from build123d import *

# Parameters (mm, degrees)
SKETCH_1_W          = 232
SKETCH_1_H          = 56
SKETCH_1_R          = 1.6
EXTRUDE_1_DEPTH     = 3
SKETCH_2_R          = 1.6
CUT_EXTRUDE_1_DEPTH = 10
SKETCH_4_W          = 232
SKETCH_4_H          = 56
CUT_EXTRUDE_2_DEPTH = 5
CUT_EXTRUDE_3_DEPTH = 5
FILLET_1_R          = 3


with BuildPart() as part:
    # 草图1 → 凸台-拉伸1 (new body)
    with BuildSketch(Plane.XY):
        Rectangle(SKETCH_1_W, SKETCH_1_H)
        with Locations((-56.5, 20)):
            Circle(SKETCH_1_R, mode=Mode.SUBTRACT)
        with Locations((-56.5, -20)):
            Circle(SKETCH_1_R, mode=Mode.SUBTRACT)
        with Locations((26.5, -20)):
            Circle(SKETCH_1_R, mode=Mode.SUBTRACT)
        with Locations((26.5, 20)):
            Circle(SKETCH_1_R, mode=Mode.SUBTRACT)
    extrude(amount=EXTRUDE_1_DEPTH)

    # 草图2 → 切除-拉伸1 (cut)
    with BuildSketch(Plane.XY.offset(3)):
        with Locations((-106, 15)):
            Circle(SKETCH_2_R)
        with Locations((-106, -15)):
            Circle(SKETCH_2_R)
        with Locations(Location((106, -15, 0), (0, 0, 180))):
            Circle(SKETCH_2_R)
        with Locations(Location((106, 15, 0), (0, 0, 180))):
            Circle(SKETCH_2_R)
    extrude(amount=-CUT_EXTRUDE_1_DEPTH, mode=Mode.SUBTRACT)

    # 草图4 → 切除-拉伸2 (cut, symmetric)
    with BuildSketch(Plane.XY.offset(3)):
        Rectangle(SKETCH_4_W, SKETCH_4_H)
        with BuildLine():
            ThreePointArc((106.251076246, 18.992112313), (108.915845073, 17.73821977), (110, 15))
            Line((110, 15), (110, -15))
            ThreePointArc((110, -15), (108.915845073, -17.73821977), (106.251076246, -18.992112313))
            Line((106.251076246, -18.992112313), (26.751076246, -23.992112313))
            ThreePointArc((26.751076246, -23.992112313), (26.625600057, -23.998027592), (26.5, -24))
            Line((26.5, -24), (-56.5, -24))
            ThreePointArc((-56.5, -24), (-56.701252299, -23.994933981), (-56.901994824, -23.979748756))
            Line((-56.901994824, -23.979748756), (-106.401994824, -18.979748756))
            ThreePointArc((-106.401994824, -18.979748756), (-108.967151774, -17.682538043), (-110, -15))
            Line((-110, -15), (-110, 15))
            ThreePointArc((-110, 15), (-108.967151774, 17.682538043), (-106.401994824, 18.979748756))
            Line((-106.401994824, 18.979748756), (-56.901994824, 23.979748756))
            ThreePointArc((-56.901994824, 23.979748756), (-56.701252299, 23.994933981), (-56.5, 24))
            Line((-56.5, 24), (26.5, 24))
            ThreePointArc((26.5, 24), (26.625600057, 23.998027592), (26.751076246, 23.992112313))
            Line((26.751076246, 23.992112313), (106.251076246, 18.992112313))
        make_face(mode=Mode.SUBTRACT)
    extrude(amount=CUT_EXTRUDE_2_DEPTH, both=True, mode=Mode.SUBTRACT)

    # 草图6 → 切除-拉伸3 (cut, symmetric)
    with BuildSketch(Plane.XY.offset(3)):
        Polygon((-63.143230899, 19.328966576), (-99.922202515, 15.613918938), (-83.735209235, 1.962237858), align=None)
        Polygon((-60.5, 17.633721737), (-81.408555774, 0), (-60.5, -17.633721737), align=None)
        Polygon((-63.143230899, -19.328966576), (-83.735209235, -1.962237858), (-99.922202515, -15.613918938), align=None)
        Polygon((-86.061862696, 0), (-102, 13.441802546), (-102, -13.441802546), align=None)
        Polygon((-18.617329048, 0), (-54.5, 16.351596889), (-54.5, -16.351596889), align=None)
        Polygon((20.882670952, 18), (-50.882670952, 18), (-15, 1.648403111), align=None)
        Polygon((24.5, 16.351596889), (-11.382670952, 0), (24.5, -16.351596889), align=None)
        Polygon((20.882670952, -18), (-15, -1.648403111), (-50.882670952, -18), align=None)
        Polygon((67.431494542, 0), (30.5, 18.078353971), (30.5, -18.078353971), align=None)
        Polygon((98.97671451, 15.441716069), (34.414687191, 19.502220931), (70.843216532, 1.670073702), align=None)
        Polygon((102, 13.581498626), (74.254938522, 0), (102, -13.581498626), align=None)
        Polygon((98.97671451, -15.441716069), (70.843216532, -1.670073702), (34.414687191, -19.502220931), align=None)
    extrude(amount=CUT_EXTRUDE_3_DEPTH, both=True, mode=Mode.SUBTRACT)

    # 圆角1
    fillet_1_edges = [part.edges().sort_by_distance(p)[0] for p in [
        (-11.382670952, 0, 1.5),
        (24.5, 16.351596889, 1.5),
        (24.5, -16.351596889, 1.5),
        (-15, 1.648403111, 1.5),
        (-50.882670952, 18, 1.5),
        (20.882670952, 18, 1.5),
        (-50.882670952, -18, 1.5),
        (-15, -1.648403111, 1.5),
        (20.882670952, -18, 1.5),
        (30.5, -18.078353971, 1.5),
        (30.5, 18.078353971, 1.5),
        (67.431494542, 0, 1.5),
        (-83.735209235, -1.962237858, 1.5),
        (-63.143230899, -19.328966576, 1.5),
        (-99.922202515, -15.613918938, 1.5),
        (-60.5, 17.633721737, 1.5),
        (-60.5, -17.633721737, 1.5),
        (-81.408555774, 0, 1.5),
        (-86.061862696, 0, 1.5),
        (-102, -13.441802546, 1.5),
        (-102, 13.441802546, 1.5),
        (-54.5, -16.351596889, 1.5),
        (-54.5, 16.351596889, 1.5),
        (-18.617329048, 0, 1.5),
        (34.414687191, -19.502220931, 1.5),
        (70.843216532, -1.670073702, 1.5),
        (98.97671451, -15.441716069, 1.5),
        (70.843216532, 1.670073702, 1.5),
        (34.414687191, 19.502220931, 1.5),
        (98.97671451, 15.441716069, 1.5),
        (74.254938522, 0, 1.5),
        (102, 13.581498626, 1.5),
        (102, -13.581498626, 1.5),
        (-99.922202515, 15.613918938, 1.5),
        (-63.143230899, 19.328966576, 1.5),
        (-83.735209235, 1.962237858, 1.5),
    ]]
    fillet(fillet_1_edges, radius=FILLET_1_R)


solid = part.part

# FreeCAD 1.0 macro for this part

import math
import FreeCAD as App
import Part
import Sketcher
Q = App.Units.Quantity


def edges_at(feature, points):
    """Names of the edges that pass closest to the given points."""
    edges = feature.Shape.Edges
    near = lambda p: min(range(len(edges)), key=lambda i: edges[i].distToShape(Part.Vertex(*p))[0])
    return sorted({f"Edge{near(p) + 1}" for p in points})


def add_polygon(sketch, points):
    """Adds a closed chain of lines whose ends are joined by coincident constraints."""
    first, n = sketch.GeometryCount, len(points)
    for a, b in zip(points, points[1:] + points[:1]):
        sketch.addGeometry(Part.LineSegment(App.Vector(*a, 0), App.Vector(*b, 0)), False)
    for i in range(n):
        sketch.addConstraint(Sketcher.Constraint("Coincident", first + i, 2, first + (i + 1) % n, 1))

doc = App.newDocument("Part")
body = doc.addObject("PartDesign::Body", "Body")

sketch1 = doc.addObject("Sketcher::SketchObject", "Sketch")
body.addObject(sketch1)
sketch1.AttachmentSupport = (doc.XY_Plane, [""])
sketch1.MapMode = "FlatFace"
add_polygon(sketch1, [(-116, 28), (-116, -28), (116, -28), (116, 28)])
sketch1.addGeometry(Part.Circle(App.Vector(-56.5, -20, 0), App.Vector(0, 0, 1), 1.6), False)
sketch1.addGeometry(Part.Circle(App.Vector(26.5, -20, 0), App.Vector(0, 0, 1), 1.6), False)
sketch1.addGeometry(Part.Circle(App.Vector(-56.5, 20, 0), App.Vector(0, 0, 1), 1.6), False)
sketch1.addGeometry(Part.Circle(App.Vector(26.5, 20, 0), App.Vector(0, 0, 1), 1.6), False)
sketch1.addConstraint(Sketcher.Constraint("Vertical", 0))
sketch1.addConstraint(Sketcher.Constraint("Horizontal", 1))
sketch1.addConstraint(Sketcher.Constraint("Vertical", 2))
sketch1.addConstraint(Sketcher.Constraint("Horizontal", 3))
sketch1.addConstraint(Sketcher.Constraint("Equal", 4, 5))
sketch1.addConstraint(Sketcher.Constraint("Equal", 5, 6))
sketch1.addConstraint(Sketcher.Constraint("Equal", 6, 7))
sketch1.addConstraint(Sketcher.Constraint("Symmetric", 0, 2, 2, 2, -1, 1))
sketch1.addConstraint(Sketcher.Constraint("Symmetric", 4, 3, 6, 3, -1))
sketch1.addConstraint(Sketcher.Constraint("Symmetric", 5, 3, 7, 3, -1))
sketch1.addConstraint(Sketcher.Constraint("Horizontal", 4, 3, 5, 3))
sketch1.addConstraint(Sketcher.Constraint("Diameter", 4, Q("3.2 mm")))
sketch1.addConstraint(Sketcher.Constraint("DistanceX", 1, 1, 1, 2, Q("232 mm")))
sketch1.addConstraint(Sketcher.Constraint("DistanceY", 0, 2, 0, 1, Q("56 mm")))
sketch1.addConstraint(Sketcher.Constraint("DistanceY", 4, 3, -1, 1, Q("20 mm")))
sketch1.addConstraint(Sketcher.Constraint("DistanceX", 4, 3, 5, 3, Q("83 mm")))
sketch1.addConstraint(Sketcher.Constraint("DistanceX", 4, 3, -1, 1, Q("56.5 mm")))
pad1 = doc.addObject("PartDesign::Pad", "Pad")
body.addObject(pad1)
pad1.Profile = sketch1
pad1.Length = 3

sketch2 = doc.addObject("Sketcher::SketchObject", "Sketch001")
body.addObject(sketch2)
sketch2.AttachmentSupport = (doc.XY_Plane, [""])
sketch2.MapMode = "FlatFace"
sketch2.AttachmentOffset = App.Placement(App.Vector(0, 0, 3), App.Rotation())
sketch2.addGeometry(Part.Circle(App.Vector(-106, 15, 0), App.Vector(0, 0, 1), 1.6), False)
sketch2.addGeometry(Part.Circle(App.Vector(-106, -15, 0), App.Vector(0, 0, 1), 1.6), False)
sketch2.addGeometry(Part.Circle(App.Vector(106, -15, 0), App.Vector(0, 0, 1), 1.6), False)
sketch2.addGeometry(Part.Circle(App.Vector(106, 15, 0), App.Vector(0, 0, 1), 1.6), False)
sketch2.addConstraint(Sketcher.Constraint("Equal", 0, 1))
sketch2.addConstraint(Sketcher.Constraint("Equal", 1, 2))
sketch2.addConstraint(Sketcher.Constraint("Equal", 2, 3))
sketch2.addConstraint(Sketcher.Constraint("Symmetric", 0, 3, 2, 3, -1, 1))
sketch2.addConstraint(Sketcher.Constraint("Symmetric", 1, 3, 3, 3, -1, 1))
sketch2.addConstraint(Sketcher.Constraint("Symmetric", 1, 3, 2, 3, -2))
sketch2.addConstraint(Sketcher.Constraint("Diameter", 0, Q("3.2 mm")))
sketch2.addConstraint(Sketcher.Constraint("DistanceX", 0, 3, -1, 1, Q("106 mm")))
sketch2.addConstraint(Sketcher.Constraint("DistanceY", -1, 1, 0, 3, Q("15 mm")))
pocket1 = doc.addObject("PartDesign::Pocket", "Pocket")
body.addObject(pocket1)
pocket1.Profile = sketch2
pocket1.Length = 10

sketch3 = doc.addObject("Sketcher::SketchObject", "Sketch002")
body.addObject(sketch3)
sketch3.AttachmentSupport = (doc.XY_Plane, [""])
sketch3.MapMode = "FlatFace"
sketch3.AttachmentOffset = App.Placement(App.Vector(0, 0, 3), App.Rotation())
add_polygon(sketch3, [(-116, 28), (-116, -28), (116, -28), (116, 28)])
sketch3.addGeometry(Part.LineSegment(App.Vector(26.75, 23.99, 0), App.Vector(106.25, 18.99, 0)), False)
sketch3.addGeometry(Part.ArcOfCircle(Part.Circle(App.Vector(106, 15, 0), App.Vector(0, 0, 1), 4), math.radians(0), math.radians(86)), False)
sketch3.addGeometry(Part.LineSegment(App.Vector(110, 15, 0), App.Vector(110, -15, 0)), False)
sketch3.addGeometry(Part.ArcOfCircle(Part.Circle(App.Vector(106, -15, 0), App.Vector(0, 0, 1), 4), math.radians(-86), math.radians(0)), False)
sketch3.addGeometry(Part.LineSegment(App.Vector(106.25, -18.99, 0), App.Vector(26.75, -23.99, 0)), False)
sketch3.addGeometry(Part.ArcOfCircle(Part.Circle(App.Vector(26.5, -20, 0), App.Vector(0, 0, 1), 4), math.radians(-90), math.radians(-86.4)), False)
sketch3.addGeometry(Part.LineSegment(App.Vector(26.5, -24, 0), App.Vector(-56.5, -24, 0)), False)
sketch3.addGeometry(Part.ArcOfCircle(Part.Circle(App.Vector(-56.5, -20, 0), App.Vector(0, 0, 1), 4), math.radians(-95.77), math.radians(-90)), False)
sketch3.addGeometry(Part.LineSegment(App.Vector(-56.9, -23.98, 0), App.Vector(-106.4, -18.98, 0)), False)
sketch3.addGeometry(Part.ArcOfCircle(Part.Circle(App.Vector(-106, -15, 0), App.Vector(0, 0, 1), 4), math.radians(180), math.radians(264)), False)
sketch3.addGeometry(Part.LineSegment(App.Vector(-110, -15, 0), App.Vector(-110, 15, 0)), False)
sketch3.addGeometry(Part.ArcOfCircle(Part.Circle(App.Vector(-106, 15, 0), App.Vector(0, 0, 1), 4), math.radians(96), math.radians(180)), False)
sketch3.addGeometry(Part.LineSegment(App.Vector(-106.4, 18.98, 0), App.Vector(-56.9, 23.98, 0)), False)
sketch3.addGeometry(Part.ArcOfCircle(Part.Circle(App.Vector(-56.5, 20, 0), App.Vector(0, 0, 1), 4), math.radians(90), math.radians(95.77)), False)
sketch3.addGeometry(Part.LineSegment(App.Vector(-56.5, 24, 0), App.Vector(26.5, 24, 0)), False)
sketch3.addGeometry(Part.ArcOfCircle(Part.Circle(App.Vector(26.5, 20, 0), App.Vector(0, 0, 1), 4), math.radians(86.4), math.radians(90)), False)
sketch3.addConstraint(Sketcher.Constraint("Tangent", 4, 2, 5, 2))
sketch3.addConstraint(Sketcher.Constraint("Tangent", 5, 1, 6, 1))
sketch3.addConstraint(Sketcher.Constraint("Tangent", 6, 2, 7, 2))
sketch3.addConstraint(Sketcher.Constraint("Tangent", 7, 1, 8, 1))
sketch3.addConstraint(Sketcher.Constraint("Tangent", 8, 2, 9, 2))
sketch3.addConstraint(Sketcher.Constraint("Tangent", 9, 1, 10, 1))
sketch3.addConstraint(Sketcher.Constraint("Tangent", 10, 2, 11, 2))
sketch3.addConstraint(Sketcher.Constraint("Tangent", 11, 1, 12, 1))
sketch3.addConstraint(Sketcher.Constraint("Tangent", 12, 2, 13, 2))
sketch3.addConstraint(Sketcher.Constraint("Tangent", 13, 1, 14, 1))
sketch3.addConstraint(Sketcher.Constraint("Tangent", 14, 2, 15, 2))
sketch3.addConstraint(Sketcher.Constraint("Tangent", 15, 1, 16, 1))
sketch3.addConstraint(Sketcher.Constraint("Tangent", 16, 2, 17, 2))
sketch3.addConstraint(Sketcher.Constraint("Tangent", 17, 1, 18, 1))
sketch3.addConstraint(Sketcher.Constraint("Tangent", 18, 2, 19, 2))
sketch3.addConstraint(Sketcher.Constraint("Tangent", 19, 1, 4, 1))
sketch3.addConstraint(Sketcher.Constraint("Vertical", 0))
sketch3.addConstraint(Sketcher.Constraint("Horizontal", 1))
sketch3.addConstraint(Sketcher.Constraint("Vertical", 2))
sketch3.addConstraint(Sketcher.Constraint("Horizontal", 3))
sketch3.addConstraint(Sketcher.Constraint("Vertical", 6))
sketch3.addConstraint(Sketcher.Constraint("Horizontal", 10))
sketch3.addConstraint(Sketcher.Constraint("Vertical", 14))
sketch3.addConstraint(Sketcher.Constraint("Horizontal", 18))
sketch3.addConstraint(Sketcher.Constraint("Equal", 5, 7))
sketch3.addConstraint(Sketcher.Constraint("Equal", 7, 9))
sketch3.addConstraint(Sketcher.Constraint("Equal", 9, 11))
sketch3.addConstraint(Sketcher.Constraint("Equal", 11, 13))
sketch3.addConstraint(Sketcher.Constraint("Equal", 13, 15))
sketch3.addConstraint(Sketcher.Constraint("Equal", 15, 17))
sketch3.addConstraint(Sketcher.Constraint("Equal", 17, 19))
sketch3.addConstraint(Sketcher.Constraint("Symmetric", 5, 3, 13, 3, -1, 1))
sketch3.addConstraint(Sketcher.Constraint("Symmetric", 0, 2, 2, 2, -1, 1))
sketch3.addConstraint(Sketcher.Constraint("Symmetric", 11, 3, 17, 3, -1))
sketch3.addConstraint(Sketcher.Constraint("Symmetric", 4, 2, 7, 1, -1))
sketch3.addConstraint(Sketcher.Constraint("Horizontal", 5, 3, 15, 3))
sketch3.addConstraint(Sketcher.Constraint("Radius", 5, Q("4 mm")))
sketch3.addConstraint(Sketcher.Constraint("DistanceX", 1, 1, 1, 2, Q("232 mm")))
sketch3.addConstraint(Sketcher.Constraint("DistanceX", 10, 2, 10, 1, Q("83 mm")))
sketch3.addConstraint(Sketcher.Constraint("DistanceY", 0, 2, 0, 1, Q("56 mm")))
sketch3.addConstraint(Sketcher.Constraint("DistanceY", 6, 2, 6, 1, Q("30 mm")))
sketch3.addConstraint(Sketcher.Constraint("DistanceX", -1, 1, 5, 3, Q("106 mm")))
sketch3.addConstraint(Sketcher.Constraint("DistanceY", 9, 3, -1, 1, Q("20 mm")))
sketch3.addConstraint(Sketcher.Constraint("DistanceX", -1, 1, 9, 3, Q("26.5 mm")))
pocket2 = doc.addObject("PartDesign::Pocket", "Pocket001")
body.addObject(pocket2)
pocket2.Profile = sketch3
pocket2.Length = 10
pocket2.Midplane = True

sketch4 = doc.addObject("Sketcher::SketchObject", "Sketch003")
body.addObject(sketch4)
sketch4.AttachmentSupport = (doc.XY_Plane, [""])
sketch4.MapMode = "FlatFace"
sketch4.AttachmentOffset = App.Placement(App.Vector(0, 0, 3), App.Rotation())
add_polygon(sketch4, [(-63, 19), (-100, 16), (-84, 2)])
add_polygon(sketch4, [(-60, 18), (-81, 0), (-60, -18)])
add_polygon(sketch4, [(-63, -19), (-84, -2), (-100, -16)])
add_polygon(sketch4, [(-86, 0), (-102, 13), (-102, -13)])
add_polygon(sketch4, [(-19, 0), (-54, 16), (-54, -16)])
add_polygon(sketch4, [(21, 18), (-51, 18), (-15, 2)])
add_polygon(sketch4, [(24, 16), (-11, 0), (24, -16)])
add_polygon(sketch4, [(21, -18), (-15, -2), (-51, -18)])
add_polygon(sketch4, [(67, 0), (30, 18), (30, -18)])
add_polygon(sketch4, [(99, 15), (34, 20), (71, 2)])
add_polygon(sketch4, [(102, 14), (74, 0), (102, -14)])
add_polygon(sketch4, [(99, -15), (71, -2), (34, -20)])
sketch4.addConstraint(Sketcher.Constraint("Vertical", 5))
sketch4.addConstraint(Sketcher.Constraint("Vertical", 10))
sketch4.addConstraint(Sketcher.Constraint("Vertical", 13))
sketch4.addConstraint(Sketcher.Constraint("Horizontal", 15))
sketch4.addConstraint(Sketcher.Constraint("Vertical", 20))
sketch4.addConstraint(Sketcher.Constraint("Horizontal", 23))
sketch4.addConstraint(Sketcher.Constraint("Vertical", 25))
sketch4.addConstraint(Sketcher.Constraint("Vertical", 32))
sketch4.addConstraint(Sketcher.Constraint("Symmetric", 1, 2, 6, 2, -1))
sketch4.addConstraint(Sketcher.Constraint("Symmetric", 0, 2, 7, 2, -1))
sketch4.addConstraint(Sketcher.Constraint("Symmetric", 2, 2, 8, 2, -1))
sketch4.addConstraint(Sketcher.Constraint("Symmetric", 16, 2, 21, 2, -1))
sketch4.addConstraint(Sketcher.Constraint("Symmetric", 15, 2, 22, 2, -1))
sketch4.addConstraint(Sketcher.Constraint("Symmetric", 28, 2, 33, 2, -1))
sketch4.addConstraint(Sketcher.Constraint("Symmetric", 27, 2, 34, 2, -1))
sketch4.addConstraint(Sketcher.Constraint("Symmetric", 29, 2, 35, 2, -1))
sketch4.addConstraint(Sketcher.Constraint("PointOnObject", 3, 2, -1))
sketch4.addConstraint(Sketcher.Constraint("PointOnObject", 11, 2, -1))
sketch4.addConstraint(Sketcher.Constraint("PointOnObject", 14, 2, -1))
sketch4.addConstraint(Sketcher.Constraint("PointOnObject", 18, 2, -1))
sketch4.addConstraint(Sketcher.Constraint("PointOnObject", 26, 2, -1))
sketch4.addConstraint(Sketcher.Constraint("PointOnObject", 30, 2, -1))
sketch4.addConstraint(Sketcher.Constraint("Parallel", 2, 3))
sketch4.addConstraint(Sketcher.Constraint("Parallel", 1, 4))
sketch4.addConstraint(Sketcher.Constraint("Parallel", 4, 6))
sketch4.addConstraint(Sketcher.Constraint("Parallel", 6, 9))
sketch4.addConstraint(Sketcher.Constraint("Parallel", 7, 11))
sketch4.addConstraint(Sketcher.Constraint("Parallel", 12, 16))
sketch4.addConstraint(Sketcher.Constraint("Parallel", 14, 17))
sketch4.addConstraint(Sketcher.Constraint("Parallel", 17, 18))
sketch4.addConstraint(Sketcher.Constraint("Parallel", 16, 19))
sketch4.addConstraint(Sketcher.Constraint("Parallel", 19, 21))
sketch4.addConstraint(Sketcher.Constraint("Parallel", 18, 22))
sketch4.addConstraint(Sketcher.Constraint("Parallel", 24, 28))
sketch4.addConstraint(Sketcher.Constraint("Parallel", 26, 29))
sketch4.addConstraint(Sketcher.Constraint("Parallel", 29, 30))
sketch4.addConstraint(Sketcher.Constraint("Parallel", 28, 31))
sketch4.addConstraint(Sketcher.Constraint("Parallel", 31, 33))
sketch4.addConstraint(Sketcher.Constraint("Horizontal", 13, 2, 19, 2))
sketch4.addConstraint(Sketcher.Constraint("Equal", 14, 16))
sketch4.addConstraint(Sketcher.Constraint("DistanceX", 9, 2, -1, 1, Q("102 mm")))
sketch4.addConstraint(Sketcher.Constraint("DistanceY", -1, 1, 15, 2, Q("18 mm")))
sketch4.addConstraint(Sketcher.Constraint("DistanceX", 16, 2, -1, 1, Q("15 mm")))
sketch4.addConstraint(Sketcher.Constraint("DistanceX", -1, 1, 31, 2, Q("102 mm")))
sketch4.addConstraint(Sketcher.Constraint("DistanceX", 5, 2, 12, 2, Q("6 mm")))
sketch4.addConstraint(Sketcher.Constraint("DistanceX", 13, 2, 19, 2, Q("79 mm")))
sketch4.addConstraint(Sketcher.Constraint("DistanceX", 20, 2, 24, 2, Q("6 mm")))
sketch4.addConstraint(Sketcher.Constraint("DistanceX", 4, 2, -1, 1, Q("60.5 mm")))
sketch4.addConstraint(Sketcher.Constraint("DistanceX", 15, 2, 15, 1, Q("71.765342 mm")))
sketch4.addConstraint(Sketcher.Constraint("DistanceY", 31, 2, -1, 1, Q("13.581499 mm")))
sketch4.addConstraint(Sketcher.Constraint("DistanceX", 2, 2, 14, 2, Q("44.525902 mm")))
sketch4.addConstraint(Sketcher.Constraint("Distance", 9, Q("20.849611 mm")))
sketch4.addConstraint(Sketcher.Constraint("Distance", 24, Q("41.118879 mm")))
sketch4.addConstraint(Sketcher.Constraint("Distance", 27, Q("64.68959 mm")))
sketch4.addConstraint(Sketcher.Constraint("DistanceY", 5, 1, 5, 2, Q("35.267443 mm")))
sketch4.addConstraint(Sketcher.Constraint("DistanceY", 10, 2, 10, 1, Q("26.883605 mm")))
sketch4.addConstraint(Sketcher.Constraint("DistanceY", 13, 2, 13, 1, Q("32.703194 mm")))
sketch4.addConstraint(Sketcher.Constraint("DistanceY", 25, 2, 25, 1, Q("36.156708 mm")))
sketch4.addConstraint(Sketcher.Constraint("DistanceY", -1, 1, 0, 2, Q("15.613919 mm")))
sketch4.addConstraint(Sketcher.Constraint("DistanceX", 1, 2, -1, 1, Q("83.735209 mm")))
sketch4.addConstraint(Sketcher.Constraint("DistanceY", -1, 1, 27, 2, Q("19.502221 mm")))
sketch4.addConstraint(Sketcher.Constraint("DistanceY", 1, 2, 0, 2, Q("13.651681 mm")))
sketch4.addConstraint(Sketcher.Constraint("DistanceX", 26, 2, 28, 2, Q("3.411722 mm")))
sketch4.addConstraint(Sketcher.Constraint("DistanceX", 27, 2, 28, 2, Q("36.428529 mm")))
pocket3 = doc.addObject("PartDesign::Pocket", "Pocket002")
body.addObject(pocket3)
pocket3.Profile = sketch4
pocket3.Length = 10
pocket3.Midplane = True
doc.recompute()

fillet = doc.addObject("PartDesign::Fillet", "Fillet")
body.addObject(fillet)
fillet.Base = (pocket3, edges_at(pocket3, [
    (-11.383, 0, 1.5),
    (24.5, 16.352, 1.5),
    (24.5, -16.352, 1.5),
    (-15, 1.648, 1.5),
    (-50.883, 18, 1.5),
    (20.883, 18, 1.5),
    (-50.883, -18, 1.5),
    (-15, -1.648, 1.5),
    (20.883, -18, 1.5),
    (30.5, -18.078, 1.5),
    (30.5, 18.078, 1.5),
    (67.431, 0, 1.5),
    (-83.735, -1.962, 1.5),
    (-63.143, -19.329, 1.5),
    (-99.922, -15.614, 1.5),
    (-60.5, 17.634, 1.5),
    (-60.5, -17.634, 1.5),
    (-81.409, 0, 1.5),
    (-86.062, 0, 1.5),
    (-102, -13.442, 1.5),
    (-102, 13.442, 1.5),
    (-54.5, -16.352, 1.5),
    (-54.5, 16.352, 1.5),
    (-18.617, 0, 1.5),
    (34.415, -19.502, 1.5),
    (70.843, -1.67, 1.5),
    (98.977, -15.442, 1.5),
    (70.843, 1.67, 1.5),
    (34.415, 19.502, 1.5),
    (98.977, 15.442, 1.5),
    (74.255, 0, 1.5),
    (102, 13.581, 1.5),
    (102, -13.581, 1.5),
    (-99.922, 15.614, 1.5),
    (-63.143, 19.329, 1.5),
    (-83.735, 1.962, 1.5),
]))
fillet.Radius = 3

doc.recompute()
